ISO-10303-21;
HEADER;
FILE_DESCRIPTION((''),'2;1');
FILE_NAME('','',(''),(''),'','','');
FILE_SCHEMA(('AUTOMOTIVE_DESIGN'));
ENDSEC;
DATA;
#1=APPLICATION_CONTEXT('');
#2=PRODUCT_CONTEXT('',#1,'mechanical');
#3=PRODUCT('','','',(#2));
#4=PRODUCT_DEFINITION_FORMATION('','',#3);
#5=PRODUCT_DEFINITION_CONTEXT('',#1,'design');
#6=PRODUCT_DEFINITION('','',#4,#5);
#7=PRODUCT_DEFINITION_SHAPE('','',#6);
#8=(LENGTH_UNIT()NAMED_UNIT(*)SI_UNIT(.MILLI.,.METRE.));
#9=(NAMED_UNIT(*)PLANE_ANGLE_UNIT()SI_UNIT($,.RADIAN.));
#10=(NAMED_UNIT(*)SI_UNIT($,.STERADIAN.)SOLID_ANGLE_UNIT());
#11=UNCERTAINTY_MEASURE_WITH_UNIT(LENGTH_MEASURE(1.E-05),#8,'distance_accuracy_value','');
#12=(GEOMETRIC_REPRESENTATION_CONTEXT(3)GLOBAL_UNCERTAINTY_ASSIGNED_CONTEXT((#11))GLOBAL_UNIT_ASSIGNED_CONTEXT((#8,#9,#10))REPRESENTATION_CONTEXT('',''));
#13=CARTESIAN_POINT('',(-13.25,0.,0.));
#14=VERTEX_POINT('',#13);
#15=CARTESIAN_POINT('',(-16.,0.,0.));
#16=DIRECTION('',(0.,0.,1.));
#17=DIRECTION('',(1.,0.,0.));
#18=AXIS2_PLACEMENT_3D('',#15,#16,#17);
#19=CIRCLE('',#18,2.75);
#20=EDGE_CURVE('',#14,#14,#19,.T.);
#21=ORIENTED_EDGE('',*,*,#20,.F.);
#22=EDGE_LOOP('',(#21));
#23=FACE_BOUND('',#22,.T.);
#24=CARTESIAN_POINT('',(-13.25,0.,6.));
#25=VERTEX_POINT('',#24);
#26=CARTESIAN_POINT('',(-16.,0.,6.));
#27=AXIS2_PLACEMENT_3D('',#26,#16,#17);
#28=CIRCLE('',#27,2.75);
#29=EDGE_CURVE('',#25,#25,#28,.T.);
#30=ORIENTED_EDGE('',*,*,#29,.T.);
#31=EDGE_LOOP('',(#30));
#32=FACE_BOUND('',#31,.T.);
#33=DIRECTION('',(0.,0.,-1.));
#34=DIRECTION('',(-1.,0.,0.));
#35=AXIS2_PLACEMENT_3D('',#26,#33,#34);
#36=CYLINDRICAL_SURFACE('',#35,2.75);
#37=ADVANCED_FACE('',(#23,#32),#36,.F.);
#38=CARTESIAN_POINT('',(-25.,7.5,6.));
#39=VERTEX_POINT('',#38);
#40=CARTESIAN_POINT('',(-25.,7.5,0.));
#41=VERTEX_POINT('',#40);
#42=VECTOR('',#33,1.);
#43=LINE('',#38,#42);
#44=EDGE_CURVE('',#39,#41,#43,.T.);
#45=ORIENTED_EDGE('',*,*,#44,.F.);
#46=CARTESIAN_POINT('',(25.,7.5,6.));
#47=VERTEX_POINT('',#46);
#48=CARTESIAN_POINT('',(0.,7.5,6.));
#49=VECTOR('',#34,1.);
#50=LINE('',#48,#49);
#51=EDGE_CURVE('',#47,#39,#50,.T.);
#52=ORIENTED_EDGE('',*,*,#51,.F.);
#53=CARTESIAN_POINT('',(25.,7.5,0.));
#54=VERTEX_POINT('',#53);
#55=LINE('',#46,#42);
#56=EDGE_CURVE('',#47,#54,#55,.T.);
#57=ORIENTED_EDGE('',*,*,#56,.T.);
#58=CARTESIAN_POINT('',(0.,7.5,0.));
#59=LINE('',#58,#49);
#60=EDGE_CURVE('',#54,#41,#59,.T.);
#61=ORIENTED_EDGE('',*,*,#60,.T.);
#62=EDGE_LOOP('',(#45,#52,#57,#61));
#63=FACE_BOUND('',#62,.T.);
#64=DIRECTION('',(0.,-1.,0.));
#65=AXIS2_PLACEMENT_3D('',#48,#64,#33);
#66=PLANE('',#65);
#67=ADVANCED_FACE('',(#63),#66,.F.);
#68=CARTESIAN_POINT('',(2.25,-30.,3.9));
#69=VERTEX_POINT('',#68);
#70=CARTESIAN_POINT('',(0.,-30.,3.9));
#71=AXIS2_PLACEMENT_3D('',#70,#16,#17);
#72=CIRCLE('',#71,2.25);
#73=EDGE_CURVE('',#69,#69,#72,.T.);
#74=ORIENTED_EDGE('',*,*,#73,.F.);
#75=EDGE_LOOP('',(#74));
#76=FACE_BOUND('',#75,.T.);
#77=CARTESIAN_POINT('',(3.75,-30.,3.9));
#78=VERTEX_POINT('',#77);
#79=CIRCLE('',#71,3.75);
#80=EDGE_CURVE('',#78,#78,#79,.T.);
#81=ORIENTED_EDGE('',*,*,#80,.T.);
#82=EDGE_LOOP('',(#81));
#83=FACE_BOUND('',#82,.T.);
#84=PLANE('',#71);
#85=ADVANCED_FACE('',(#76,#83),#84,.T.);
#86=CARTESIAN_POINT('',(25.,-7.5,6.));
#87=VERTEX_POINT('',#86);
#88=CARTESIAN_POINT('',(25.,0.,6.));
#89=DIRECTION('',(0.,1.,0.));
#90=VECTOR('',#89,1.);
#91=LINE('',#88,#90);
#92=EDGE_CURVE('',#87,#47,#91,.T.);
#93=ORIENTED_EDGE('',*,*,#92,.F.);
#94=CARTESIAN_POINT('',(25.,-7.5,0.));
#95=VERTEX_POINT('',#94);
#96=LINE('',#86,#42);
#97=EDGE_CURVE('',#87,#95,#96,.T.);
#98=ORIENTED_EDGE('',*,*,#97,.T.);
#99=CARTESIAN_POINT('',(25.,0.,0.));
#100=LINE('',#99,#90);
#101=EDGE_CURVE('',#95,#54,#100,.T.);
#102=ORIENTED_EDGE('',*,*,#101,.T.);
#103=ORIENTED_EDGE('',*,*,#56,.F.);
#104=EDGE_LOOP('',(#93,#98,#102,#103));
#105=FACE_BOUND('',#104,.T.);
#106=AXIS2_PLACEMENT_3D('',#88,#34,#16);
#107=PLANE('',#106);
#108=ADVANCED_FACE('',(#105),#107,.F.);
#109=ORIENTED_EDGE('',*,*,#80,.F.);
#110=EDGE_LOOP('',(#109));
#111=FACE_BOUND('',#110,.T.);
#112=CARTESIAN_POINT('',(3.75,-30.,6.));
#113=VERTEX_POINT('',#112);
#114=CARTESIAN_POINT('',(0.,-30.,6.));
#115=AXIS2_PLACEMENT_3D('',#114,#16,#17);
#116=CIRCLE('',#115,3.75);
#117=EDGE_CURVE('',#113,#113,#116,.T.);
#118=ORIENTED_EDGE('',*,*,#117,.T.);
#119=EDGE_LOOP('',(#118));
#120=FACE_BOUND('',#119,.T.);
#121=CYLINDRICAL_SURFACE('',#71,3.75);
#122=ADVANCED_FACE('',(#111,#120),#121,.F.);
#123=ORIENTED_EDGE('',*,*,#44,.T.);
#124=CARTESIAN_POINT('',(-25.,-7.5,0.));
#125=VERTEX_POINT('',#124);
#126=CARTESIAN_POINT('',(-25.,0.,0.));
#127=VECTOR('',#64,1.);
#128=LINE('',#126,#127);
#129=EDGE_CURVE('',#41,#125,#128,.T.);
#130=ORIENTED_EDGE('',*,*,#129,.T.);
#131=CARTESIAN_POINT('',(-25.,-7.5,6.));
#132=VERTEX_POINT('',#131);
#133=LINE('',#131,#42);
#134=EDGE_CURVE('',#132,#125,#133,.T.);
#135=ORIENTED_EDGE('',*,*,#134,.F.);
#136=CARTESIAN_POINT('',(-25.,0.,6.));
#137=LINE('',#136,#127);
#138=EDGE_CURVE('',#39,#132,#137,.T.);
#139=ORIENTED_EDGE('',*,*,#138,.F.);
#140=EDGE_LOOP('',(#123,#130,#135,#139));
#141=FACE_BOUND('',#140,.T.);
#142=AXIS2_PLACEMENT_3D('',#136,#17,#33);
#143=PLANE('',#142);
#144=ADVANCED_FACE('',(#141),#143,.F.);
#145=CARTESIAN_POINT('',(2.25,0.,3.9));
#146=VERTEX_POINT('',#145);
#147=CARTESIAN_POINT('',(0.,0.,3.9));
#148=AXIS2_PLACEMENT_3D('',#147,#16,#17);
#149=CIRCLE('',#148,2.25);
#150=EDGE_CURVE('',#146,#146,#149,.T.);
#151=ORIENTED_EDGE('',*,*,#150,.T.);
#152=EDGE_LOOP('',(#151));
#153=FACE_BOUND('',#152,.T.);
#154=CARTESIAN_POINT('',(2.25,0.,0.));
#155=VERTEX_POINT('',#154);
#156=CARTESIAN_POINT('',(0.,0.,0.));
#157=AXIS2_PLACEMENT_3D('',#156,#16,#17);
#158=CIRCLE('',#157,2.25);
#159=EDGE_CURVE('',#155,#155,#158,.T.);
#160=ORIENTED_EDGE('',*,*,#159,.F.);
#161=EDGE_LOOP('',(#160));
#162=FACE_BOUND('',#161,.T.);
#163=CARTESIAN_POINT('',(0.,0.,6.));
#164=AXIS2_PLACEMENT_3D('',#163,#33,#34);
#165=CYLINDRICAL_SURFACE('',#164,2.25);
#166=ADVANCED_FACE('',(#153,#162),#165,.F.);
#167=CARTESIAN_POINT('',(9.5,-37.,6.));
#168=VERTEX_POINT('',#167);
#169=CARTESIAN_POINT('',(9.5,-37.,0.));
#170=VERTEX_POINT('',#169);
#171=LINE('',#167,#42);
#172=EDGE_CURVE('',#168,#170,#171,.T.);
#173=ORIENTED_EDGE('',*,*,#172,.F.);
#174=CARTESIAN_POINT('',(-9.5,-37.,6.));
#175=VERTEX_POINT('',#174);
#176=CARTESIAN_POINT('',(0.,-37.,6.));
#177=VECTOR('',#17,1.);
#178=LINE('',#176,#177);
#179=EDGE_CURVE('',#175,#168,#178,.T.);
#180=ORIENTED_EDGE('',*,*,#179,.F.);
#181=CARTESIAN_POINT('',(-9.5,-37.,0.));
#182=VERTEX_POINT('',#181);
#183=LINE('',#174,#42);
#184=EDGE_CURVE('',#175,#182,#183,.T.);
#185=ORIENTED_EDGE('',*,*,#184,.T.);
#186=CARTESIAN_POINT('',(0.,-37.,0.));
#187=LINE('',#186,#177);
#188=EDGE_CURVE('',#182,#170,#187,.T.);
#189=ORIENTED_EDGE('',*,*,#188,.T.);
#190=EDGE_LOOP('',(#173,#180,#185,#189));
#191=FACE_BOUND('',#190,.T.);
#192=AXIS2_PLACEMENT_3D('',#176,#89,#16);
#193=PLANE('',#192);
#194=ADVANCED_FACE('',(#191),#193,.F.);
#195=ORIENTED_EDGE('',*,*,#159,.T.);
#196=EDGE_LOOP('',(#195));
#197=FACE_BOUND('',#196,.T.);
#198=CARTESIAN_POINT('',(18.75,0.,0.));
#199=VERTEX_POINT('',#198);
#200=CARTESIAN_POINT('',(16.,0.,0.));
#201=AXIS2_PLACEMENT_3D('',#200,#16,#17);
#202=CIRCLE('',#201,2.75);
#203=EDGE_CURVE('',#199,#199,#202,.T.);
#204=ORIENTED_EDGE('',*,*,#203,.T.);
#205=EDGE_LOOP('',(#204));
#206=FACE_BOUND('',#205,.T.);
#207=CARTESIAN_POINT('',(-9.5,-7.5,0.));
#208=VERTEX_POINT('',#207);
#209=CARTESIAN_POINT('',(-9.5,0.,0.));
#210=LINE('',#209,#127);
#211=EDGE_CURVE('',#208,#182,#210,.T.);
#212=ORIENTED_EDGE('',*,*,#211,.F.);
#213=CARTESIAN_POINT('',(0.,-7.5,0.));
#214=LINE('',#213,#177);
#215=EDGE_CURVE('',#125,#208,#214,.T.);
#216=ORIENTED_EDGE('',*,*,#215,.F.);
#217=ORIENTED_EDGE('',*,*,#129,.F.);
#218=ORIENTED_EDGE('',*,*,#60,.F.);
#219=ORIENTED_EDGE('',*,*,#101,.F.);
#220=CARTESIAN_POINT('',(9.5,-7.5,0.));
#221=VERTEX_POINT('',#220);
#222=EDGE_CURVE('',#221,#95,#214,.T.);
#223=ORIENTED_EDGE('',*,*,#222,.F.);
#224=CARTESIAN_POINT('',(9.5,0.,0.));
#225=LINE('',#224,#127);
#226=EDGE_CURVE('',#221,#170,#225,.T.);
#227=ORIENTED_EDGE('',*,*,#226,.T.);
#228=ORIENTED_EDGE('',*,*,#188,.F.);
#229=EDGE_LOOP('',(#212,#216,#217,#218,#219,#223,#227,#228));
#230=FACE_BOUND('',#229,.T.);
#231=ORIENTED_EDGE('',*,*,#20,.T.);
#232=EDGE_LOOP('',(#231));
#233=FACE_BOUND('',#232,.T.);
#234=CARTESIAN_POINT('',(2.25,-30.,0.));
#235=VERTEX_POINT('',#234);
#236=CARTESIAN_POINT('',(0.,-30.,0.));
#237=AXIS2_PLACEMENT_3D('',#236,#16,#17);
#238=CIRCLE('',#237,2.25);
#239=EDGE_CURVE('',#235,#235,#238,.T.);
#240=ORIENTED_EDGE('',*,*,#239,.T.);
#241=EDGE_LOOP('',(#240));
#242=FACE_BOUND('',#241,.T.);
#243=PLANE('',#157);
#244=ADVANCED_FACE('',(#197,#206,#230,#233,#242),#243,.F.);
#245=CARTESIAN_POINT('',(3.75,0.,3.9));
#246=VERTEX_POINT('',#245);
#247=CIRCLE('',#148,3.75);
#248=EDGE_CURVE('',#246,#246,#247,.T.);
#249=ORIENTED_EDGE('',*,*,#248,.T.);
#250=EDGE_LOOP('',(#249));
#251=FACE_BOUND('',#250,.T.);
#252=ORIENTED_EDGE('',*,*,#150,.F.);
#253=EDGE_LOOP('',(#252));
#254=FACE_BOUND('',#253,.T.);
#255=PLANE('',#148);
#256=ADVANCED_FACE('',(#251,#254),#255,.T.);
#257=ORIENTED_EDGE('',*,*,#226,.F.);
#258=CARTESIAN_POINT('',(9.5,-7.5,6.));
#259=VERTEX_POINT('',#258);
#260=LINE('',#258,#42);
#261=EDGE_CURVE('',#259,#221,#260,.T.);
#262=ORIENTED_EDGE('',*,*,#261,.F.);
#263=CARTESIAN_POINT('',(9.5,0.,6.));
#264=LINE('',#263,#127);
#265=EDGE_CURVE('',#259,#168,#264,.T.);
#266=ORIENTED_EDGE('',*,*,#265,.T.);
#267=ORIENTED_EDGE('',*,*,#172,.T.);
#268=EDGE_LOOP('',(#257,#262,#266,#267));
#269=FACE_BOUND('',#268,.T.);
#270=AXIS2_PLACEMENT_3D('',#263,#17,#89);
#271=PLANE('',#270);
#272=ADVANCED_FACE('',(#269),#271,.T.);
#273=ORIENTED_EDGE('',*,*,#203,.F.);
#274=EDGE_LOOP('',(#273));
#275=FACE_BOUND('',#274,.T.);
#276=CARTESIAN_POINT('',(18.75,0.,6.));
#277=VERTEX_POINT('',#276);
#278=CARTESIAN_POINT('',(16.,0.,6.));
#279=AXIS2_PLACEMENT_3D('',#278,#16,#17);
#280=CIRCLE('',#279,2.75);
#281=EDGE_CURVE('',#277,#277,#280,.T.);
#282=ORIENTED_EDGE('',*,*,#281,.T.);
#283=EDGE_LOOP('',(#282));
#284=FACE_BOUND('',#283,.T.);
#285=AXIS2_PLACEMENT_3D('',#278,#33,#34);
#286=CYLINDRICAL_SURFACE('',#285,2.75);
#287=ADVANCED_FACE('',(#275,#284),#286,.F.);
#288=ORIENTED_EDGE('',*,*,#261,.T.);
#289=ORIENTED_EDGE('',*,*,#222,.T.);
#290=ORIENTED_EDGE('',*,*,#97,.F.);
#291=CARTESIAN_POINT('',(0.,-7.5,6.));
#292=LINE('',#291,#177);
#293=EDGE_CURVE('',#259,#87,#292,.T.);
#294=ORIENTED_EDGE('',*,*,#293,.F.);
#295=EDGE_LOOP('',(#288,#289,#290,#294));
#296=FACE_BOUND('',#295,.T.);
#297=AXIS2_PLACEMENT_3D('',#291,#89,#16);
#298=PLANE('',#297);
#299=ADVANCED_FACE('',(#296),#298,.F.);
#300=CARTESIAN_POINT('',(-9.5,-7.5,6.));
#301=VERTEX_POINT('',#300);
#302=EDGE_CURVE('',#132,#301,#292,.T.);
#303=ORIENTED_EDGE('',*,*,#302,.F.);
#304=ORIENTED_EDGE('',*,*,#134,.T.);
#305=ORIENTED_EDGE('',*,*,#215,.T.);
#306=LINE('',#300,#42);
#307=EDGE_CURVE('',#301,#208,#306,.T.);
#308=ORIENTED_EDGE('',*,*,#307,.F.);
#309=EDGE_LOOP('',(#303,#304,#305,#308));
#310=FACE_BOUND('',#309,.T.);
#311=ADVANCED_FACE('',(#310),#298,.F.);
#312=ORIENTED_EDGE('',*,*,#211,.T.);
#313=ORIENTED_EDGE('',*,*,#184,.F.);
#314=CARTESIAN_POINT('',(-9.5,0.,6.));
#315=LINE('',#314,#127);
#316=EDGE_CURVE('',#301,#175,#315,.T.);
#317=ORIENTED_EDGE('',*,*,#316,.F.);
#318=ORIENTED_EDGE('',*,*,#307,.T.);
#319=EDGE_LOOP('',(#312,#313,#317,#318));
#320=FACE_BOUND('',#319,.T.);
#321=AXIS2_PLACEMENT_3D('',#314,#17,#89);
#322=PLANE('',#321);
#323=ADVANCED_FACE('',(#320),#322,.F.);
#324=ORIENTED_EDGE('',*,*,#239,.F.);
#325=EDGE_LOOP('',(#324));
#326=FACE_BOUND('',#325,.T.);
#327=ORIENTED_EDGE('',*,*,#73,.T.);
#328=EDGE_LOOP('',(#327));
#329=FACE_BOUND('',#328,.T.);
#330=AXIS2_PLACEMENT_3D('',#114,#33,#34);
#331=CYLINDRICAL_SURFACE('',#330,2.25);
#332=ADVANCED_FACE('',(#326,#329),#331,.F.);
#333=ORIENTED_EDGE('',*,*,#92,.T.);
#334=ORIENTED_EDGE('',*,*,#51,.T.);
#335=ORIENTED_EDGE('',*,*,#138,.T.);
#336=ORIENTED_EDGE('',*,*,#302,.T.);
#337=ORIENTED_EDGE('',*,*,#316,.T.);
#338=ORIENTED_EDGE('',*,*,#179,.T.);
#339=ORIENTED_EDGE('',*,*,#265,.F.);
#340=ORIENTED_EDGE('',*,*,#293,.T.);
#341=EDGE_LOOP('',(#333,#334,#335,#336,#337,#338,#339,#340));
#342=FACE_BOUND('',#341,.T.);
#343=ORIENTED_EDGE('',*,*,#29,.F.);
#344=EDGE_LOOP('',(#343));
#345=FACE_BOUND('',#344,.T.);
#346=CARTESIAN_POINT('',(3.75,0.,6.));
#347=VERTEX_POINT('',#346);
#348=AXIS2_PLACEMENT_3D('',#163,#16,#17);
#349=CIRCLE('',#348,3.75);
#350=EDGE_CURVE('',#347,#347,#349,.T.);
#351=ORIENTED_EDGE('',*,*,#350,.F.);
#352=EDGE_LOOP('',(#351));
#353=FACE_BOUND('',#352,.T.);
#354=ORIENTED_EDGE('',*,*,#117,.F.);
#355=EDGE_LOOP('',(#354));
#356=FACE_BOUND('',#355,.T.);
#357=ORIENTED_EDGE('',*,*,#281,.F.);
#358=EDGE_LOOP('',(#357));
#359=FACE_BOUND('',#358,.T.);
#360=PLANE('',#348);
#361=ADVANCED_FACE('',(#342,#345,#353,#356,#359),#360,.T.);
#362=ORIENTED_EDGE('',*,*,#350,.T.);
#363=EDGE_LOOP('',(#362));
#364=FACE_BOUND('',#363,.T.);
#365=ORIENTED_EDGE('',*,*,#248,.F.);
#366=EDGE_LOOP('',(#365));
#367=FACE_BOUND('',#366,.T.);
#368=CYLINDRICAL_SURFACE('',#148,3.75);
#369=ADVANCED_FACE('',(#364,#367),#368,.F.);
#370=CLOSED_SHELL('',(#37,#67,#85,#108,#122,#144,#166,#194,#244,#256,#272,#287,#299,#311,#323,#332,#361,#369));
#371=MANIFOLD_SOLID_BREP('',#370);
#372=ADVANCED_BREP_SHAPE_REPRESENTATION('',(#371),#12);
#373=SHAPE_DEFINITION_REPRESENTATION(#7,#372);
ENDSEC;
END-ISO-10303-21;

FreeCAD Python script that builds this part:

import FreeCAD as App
import Part
import Sketcher

V = App.Vector

doc = App.newDocument("Part")
body = doc.addObject("PartDesign::Body", "Body")

sketch1 = body.newObject("Sketcher::SketchObject", "Sketch")
sketch1.AttachmentSupport = (doc.getObject("XY_Plane"), [""])
sketch1.MapMode = "FlatFace"
sketch1.addGeometry([
    Part.LineSegment(V(-25, 7.5, 0), V(-25, -7.5, 0)),
    Part.LineSegment(V(-25, -7.5, 0), V(-9.5, -7.5, 0)),
    Part.LineSegment(V(-9.5, -7.5, 0), V(-9.5, -37, 0)),
    Part.LineSegment(V(-9.5, -37, 0), V(9.5, -37, 0)),
    Part.LineSegment(V(9.5, -37, 0), V(9.5, -7.5, 0)),
    Part.LineSegment(V(9.5, -7.5, 0), V(25, -7.5, 0)),
    Part.LineSegment(V(25, -7.5, 0), V(25, 7.5, 0)),
    Part.LineSegment(V(25, 7.5, 0), V(-25, 7.5, 0)),
    Part.Circle(V(-16, 0, 0), V(0, 0, 1), 2.75),
    Part.Circle(V(0, 0, 0), V(0, 0, 1), 2.25),
    Part.Circle(V(16, 0, 0), V(0, 0, 1), 2.75),
    Part.Circle(V(0, -30, 0), V(0, 0, 1), 2.25),
], False)
sketch1.addConstraint([
    Sketcher.Constraint("Coincident", 0, 2, 1, 1),
    Sketcher.Constraint("Coincident", 1, 2, 2, 1),
    Sketcher.Constraint("Coincident", 2, 2, 3, 1),
    Sketcher.Constraint("Coincident", 3, 2, 4, 1),
    Sketcher.Constraint("Coincident", 4, 2, 5, 1),
    Sketcher.Constraint("Coincident", 5, 2, 6, 1),
    Sketcher.Constraint("Coincident", 6, 2, 7, 1),
    Sketcher.Constraint("Coincident", 7, 2, 0, 1),
    Sketcher.Constraint("Vertical", 0),
    Sketcher.Constraint("Horizontal", 1),
    Sketcher.Constraint("Vertical", 2),
    Sketcher.Constraint("Horizontal", 3),
    Sketcher.Constraint("Vertical", 4),
    Sketcher.Constraint("Horizontal", 5),
    Sketcher.Constraint("Vertical", 6),
    Sketcher.Constraint("Horizontal", 7),
    Sketcher.Constraint("Coincident", 9, 3, -1, 1),
    Sketcher.Constraint("Equal", 8, 10),
    Sketcher.Constraint("Equal", 9, 11),
    Sketcher.Constraint("Symmetric", 8, 3, 10, 3, -1, 1),
    Sketcher.Constraint("Symmetric", 0, 2, 6, 2, -1, 1),
    Sketcher.Constraint("Symmetric", 1, 2, 4, 2, -2),
    Sketcher.Constraint("PointOnObject", 8, 3, -1),
    Sketcher.Constraint("PointOnObject", 11, 3, -2),
    Sketcher.Constraint("Diameter", 8, 5.5),
    Sketcher.Constraint("Diameter", 9, 4.5),
    Sketcher.Constraint("DistanceX", 3, 1, 3, 2, 19.0),
    Sketcher.Constraint("DistanceX", 7, 2, 7, 1, 50.0),
    Sketcher.Constraint("DistanceY", 0, 2, 0, 1, 15.0),
    Sketcher.Constraint("DistanceY", 2, 2, 2, 1, 29.5),
    Sketcher.Constraint("DistanceX", 8, 3, -1, 1, 16.0),
    Sketcher.Constraint("DistanceY", 11, 3, -1, 1, 30.0),
])
pad1 = body.newObject("PartDesign::Pad", "Pad")
pad1.Profile = sketch1
pad1.Length = 6

sketch2 = body.newObject("Sketcher::SketchObject", "Sketch001")
sketch2.AttachmentSupport = (doc.getObject("XY_Plane"), [""])
sketch2.MapMode = "FlatFace"
sketch2.AttachmentOffset = App.Placement(V(0, 0, 6), App.Rotation())
sketch2.addGeometry([
    Part.Circle(V(0, 0, 0), V(0, 0, 1), 3.75),
    Part.Circle(V(0, -30, 0), V(0, 0, 1), 3.75),
], False)
sketch2.addConstraint([
    Sketcher.Constraint("Coincident", 0, 3, -1, 1),
    Sketcher.Constraint("Equal", 0, 1),
    Sketcher.Constraint("PointOnObject", 1, 3, -2),
    Sketcher.Constraint("Diameter", 0, 7.5),
    Sketcher.Constraint("DistanceY", 1, 3, -1, 1, 30.0),
])
pocket1 = body.newObject("PartDesign::Pocket", "Pocket")
pocket1.Profile = sketch2
pocket1.Length = 2.1

doc.recompute()
